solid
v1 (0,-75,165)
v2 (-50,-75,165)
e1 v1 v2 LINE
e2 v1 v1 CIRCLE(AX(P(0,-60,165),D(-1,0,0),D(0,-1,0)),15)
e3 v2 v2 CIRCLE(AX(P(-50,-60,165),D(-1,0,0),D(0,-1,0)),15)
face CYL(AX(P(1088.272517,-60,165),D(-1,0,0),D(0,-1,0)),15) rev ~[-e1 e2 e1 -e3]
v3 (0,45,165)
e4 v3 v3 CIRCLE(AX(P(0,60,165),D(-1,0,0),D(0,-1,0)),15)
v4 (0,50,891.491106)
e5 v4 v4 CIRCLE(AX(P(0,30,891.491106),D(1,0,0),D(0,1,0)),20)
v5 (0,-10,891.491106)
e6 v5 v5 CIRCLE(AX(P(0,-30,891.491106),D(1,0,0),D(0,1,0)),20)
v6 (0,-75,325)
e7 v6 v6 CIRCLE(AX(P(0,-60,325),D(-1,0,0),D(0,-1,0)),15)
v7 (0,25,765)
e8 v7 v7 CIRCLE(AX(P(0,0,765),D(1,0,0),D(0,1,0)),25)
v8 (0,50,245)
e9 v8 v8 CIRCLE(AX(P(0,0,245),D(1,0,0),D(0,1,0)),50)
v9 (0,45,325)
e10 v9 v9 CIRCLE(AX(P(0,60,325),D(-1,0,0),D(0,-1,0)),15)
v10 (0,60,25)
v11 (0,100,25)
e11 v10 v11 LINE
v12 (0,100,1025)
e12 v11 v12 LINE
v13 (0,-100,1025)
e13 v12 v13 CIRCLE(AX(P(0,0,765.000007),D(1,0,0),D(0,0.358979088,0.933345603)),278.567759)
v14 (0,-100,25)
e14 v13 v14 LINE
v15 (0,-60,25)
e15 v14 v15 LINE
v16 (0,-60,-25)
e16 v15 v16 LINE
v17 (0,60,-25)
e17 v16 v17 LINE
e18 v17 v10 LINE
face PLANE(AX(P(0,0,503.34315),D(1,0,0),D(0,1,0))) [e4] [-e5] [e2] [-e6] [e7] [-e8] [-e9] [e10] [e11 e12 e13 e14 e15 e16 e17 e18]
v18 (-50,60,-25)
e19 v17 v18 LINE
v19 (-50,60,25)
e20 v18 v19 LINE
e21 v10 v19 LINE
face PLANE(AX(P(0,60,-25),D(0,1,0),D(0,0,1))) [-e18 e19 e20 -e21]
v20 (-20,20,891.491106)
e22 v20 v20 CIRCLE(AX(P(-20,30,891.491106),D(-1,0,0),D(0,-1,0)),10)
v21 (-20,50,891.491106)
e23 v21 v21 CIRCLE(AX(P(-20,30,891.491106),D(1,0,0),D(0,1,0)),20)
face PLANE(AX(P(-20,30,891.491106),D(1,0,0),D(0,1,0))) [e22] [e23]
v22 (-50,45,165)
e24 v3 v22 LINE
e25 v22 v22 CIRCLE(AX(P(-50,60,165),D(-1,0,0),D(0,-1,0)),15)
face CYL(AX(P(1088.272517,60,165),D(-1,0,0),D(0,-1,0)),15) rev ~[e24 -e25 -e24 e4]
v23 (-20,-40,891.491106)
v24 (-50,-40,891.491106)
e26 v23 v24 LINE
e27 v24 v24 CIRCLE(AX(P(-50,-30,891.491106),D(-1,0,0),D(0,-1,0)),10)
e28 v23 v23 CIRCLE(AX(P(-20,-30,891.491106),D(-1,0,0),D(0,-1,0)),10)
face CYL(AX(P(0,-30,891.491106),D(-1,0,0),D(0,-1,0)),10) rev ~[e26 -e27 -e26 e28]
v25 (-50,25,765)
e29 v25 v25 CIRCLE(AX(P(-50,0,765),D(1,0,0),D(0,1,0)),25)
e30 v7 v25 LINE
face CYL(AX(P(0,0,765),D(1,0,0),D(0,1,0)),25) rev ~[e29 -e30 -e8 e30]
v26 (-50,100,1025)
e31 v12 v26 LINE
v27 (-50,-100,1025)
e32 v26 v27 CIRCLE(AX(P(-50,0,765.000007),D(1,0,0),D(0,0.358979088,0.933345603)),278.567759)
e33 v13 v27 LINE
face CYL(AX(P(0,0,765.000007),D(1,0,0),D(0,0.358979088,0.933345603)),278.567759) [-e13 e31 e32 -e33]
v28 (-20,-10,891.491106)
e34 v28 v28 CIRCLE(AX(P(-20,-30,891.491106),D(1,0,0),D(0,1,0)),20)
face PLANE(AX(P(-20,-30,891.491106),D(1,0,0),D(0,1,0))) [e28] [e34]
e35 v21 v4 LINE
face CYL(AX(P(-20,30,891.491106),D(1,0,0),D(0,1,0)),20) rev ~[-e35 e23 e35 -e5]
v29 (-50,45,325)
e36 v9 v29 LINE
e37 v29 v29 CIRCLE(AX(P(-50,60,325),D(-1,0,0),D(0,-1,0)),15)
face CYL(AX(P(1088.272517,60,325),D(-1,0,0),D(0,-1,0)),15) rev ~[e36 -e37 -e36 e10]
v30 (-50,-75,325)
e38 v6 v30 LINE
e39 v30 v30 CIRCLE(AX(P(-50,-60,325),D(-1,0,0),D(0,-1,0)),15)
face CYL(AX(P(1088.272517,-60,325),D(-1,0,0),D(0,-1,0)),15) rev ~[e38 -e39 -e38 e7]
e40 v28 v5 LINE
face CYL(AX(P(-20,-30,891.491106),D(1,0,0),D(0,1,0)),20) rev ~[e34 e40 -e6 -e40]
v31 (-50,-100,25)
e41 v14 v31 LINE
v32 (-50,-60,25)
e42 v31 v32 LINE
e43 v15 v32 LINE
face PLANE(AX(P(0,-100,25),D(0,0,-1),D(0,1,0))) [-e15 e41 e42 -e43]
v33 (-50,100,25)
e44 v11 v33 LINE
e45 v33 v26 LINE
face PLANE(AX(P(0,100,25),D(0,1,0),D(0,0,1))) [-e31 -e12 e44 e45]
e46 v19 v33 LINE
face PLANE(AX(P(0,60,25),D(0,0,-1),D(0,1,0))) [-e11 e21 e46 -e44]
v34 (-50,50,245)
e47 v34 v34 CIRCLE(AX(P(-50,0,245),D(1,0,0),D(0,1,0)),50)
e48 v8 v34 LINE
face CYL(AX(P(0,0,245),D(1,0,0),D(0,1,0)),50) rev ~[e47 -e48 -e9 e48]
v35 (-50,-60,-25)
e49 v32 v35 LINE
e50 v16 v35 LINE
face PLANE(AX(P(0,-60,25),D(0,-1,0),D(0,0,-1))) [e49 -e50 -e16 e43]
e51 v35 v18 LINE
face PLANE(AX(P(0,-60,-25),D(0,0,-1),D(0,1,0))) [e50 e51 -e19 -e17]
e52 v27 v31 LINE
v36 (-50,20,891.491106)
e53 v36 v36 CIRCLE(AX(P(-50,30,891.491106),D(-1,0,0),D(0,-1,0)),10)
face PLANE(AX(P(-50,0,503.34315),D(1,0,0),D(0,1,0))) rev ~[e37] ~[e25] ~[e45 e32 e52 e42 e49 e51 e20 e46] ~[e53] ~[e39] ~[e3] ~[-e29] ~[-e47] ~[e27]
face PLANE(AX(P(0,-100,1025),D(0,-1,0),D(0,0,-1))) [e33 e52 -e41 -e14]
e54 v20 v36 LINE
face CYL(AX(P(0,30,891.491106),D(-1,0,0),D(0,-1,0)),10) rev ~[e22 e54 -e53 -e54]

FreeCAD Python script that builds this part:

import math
import FreeCAD as App
import Part
import Sketcher
from FreeCAD import Vector

doc = App.newDocument("Part")
body = doc.addObject("PartDesign::Body", "Body")

# Sketch on YZ plane
sketch1 = doc.addObject("Sketcher::SketchObject", "Sketch")
body.addObject(sketch1)
sketch1.AttachmentSupport = (doc.YZ_Plane, [""])
sketch1.MapMode = "FlatFace"
sketch1.addGeometry([
    Part.LineSegment(Vector(-60, -25, 0), Vector(60, -25, 0)),  # 0
    Part.LineSegment(Vector(60, -25, 0), Vector(60, 25, 0)),  # 1
    Part.LineSegment(Vector(60, 25, 0), Vector(100, 25, 0)),  # 2
    Part.LineSegment(Vector(100, 25, 0), Vector(100, 1025, 0)),  # 3
    Part.ArcOfCircle(Part.Circle(Vector(0, 765, 0), Vector(0, 0, 1), 279), math.radians(69), math.radians(111)),  # 4
    Part.LineSegment(Vector(-100, 1025, 0), Vector(-100, 25, 0)),  # 5
    Part.LineSegment(Vector(-100, 25, 0), Vector(-60, 25, 0)),  # 6
    Part.LineSegment(Vector(-60, 25, 0), Vector(-60, -25, 0)),  # 7
    Part.Circle(Vector(0, 245, 0), Vector(0, 0, 1), 50),  # 8
    Part.Circle(Vector(0, 765, 0), Vector(0, 0, 1), 25),  # 9
], False)
sketch1.addConstraint([
    Sketcher.Constraint("Coincident", 0, 2, 1, 1),
    Sketcher.Constraint("Coincident", 1, 2, 2, 1),
    Sketcher.Constraint("Coincident", 2, 2, 3, 1),
    Sketcher.Constraint("Coincident", 3, 2, 4, 1),
    Sketcher.Constraint("Coincident", 4, 2, 5, 1),
    Sketcher.Constraint("Coincident", 5, 2, 6, 1),
    Sketcher.Constraint("Coincident", 6, 2, 7, 1),
    Sketcher.Constraint("Coincident", 7, 2, 0, 1),
    Sketcher.Constraint("Horizontal", 0),
    Sketcher.Constraint("Vertical", 1),
    Sketcher.Constraint("Horizontal", 2),
    Sketcher.Constraint("Vertical", 3),
    Sketcher.Constraint("Vertical", 5),
    Sketcher.Constraint("Horizontal", 6),
    Sketcher.Constraint("Vertical", 7),
    Sketcher.Constraint("Coincident", 9, 3, 4, 3),
    Sketcher.Constraint("Symmetric", 0, 2, 6, 2, -1, 1),
    Sketcher.Constraint("Symmetric", 3, 2, 4, 2, -2),
    Sketcher.Constraint("PointOnObject", 8, 3, -2),
    Sketcher.Constraint("Horizontal", 2, 2, 5, 2),
    Sketcher.Constraint("Diameter", 8, 100.0),
    Sketcher.Constraint("Diameter", 9, 50.0),
    Sketcher.Constraint("DistanceX", 0, 1, 0, 2, 120.0),
    Sketcher.Constraint("DistanceX", 2, 1, 2, 2, 40.0),
    Sketcher.Constraint("DistanceY", 1, 1, 1, 2, 50.0),
    Sketcher.Constraint("DistanceY", 3, 1, 3, 2, 1000.0),
    Sketcher.Constraint("DistanceY", -1, 1, 8, 3, 245.0),
    Sketcher.Constraint("DistanceY", -1, 1, 9, 3, 765.0),
])
pad1 = doc.addObject("PartDesign::Pad", "Pad")
body.addObject(pad1)
pad1.Profile = sketch1
pad1.Length = 50
pad1.Reversed = True

# Sketch on YZ plane
sketch2 = doc.addObject("Sketcher::SketchObject", "Sketch001")
body.addObject(sketch2)
sketch2.AttachmentSupport = (doc.YZ_Plane, [""])
sketch2.MapMode = "FlatFace"
sketch2.addGeometry([
    Part.Circle(Vector(-60, 165, 0), Vector(0, 0, 1), 15),
    Part.Circle(Vector(-60, 325, 0), Vector(0, 0, 1), 15),
    Part.Circle(Vector(60, 325, 0), Vector(0, 0, 1), 15),
    Part.Circle(Vector(60, 165, 0), Vector(0, 0, 1), 15),
], False)
sketch2.addConstraint([
    Sketcher.Constraint("Equal", 0, 1),
    Sketcher.Constraint("Equal", 1, 2),
    Sketcher.Constraint("Equal", 2, 3),
    Sketcher.Constraint("Symmetric", 1, 3, 2, 3, -2),
    Sketcher.Constraint("Symmetric", 0, 3, 3, 3, -2),
    Sketcher.Constraint("Vertical", 0, 3, 1, 3),
    Sketcher.Constraint("Diameter", 0, 30.0),
    Sketcher.Constraint("DistanceX", 0, 3, -1, 1, 60.0),
    Sketcher.Constraint("DistanceY", -1, 1, 0, 3, 165.0),
    Sketcher.Constraint("DistanceY", -1, 1, 1, 3, 325.0),
])
doc.recompute()
hole = doc.addObject("PartDesign::Hole", "Hole")
body.addObject(hole)
hole.Profile = sketch2
hole.ThreadType = "None"
hole.Diameter = 30
hole.DepthType = "ThroughAll"

# Sketch on YZ plane
sketch3 = doc.addObject("Sketcher::SketchObject", "Sketch002")
body.addObject(sketch3)
sketch3.AttachmentSupport = (doc.YZ_Plane, [""])
sketch3.MapMode = "FlatFace"
sketch3.addGeometry([
    Part.Circle(Vector(30, 891, 0), Vector(0, 0, 1), 10),
    Part.Circle(Vector(-30, 891, 0), Vector(0, 0, 1), 10),
], False)
sketch3.addConstraint([
    Sketcher.Constraint("Equal", 0, 1),
    Sketcher.Constraint("Symmetric", 0, 3, 1, 3, -2),
    Sketcher.Constraint("Diameter", 0, 20.0),
    Sketcher.Constraint("DistanceX", -1, 1, 0, 3, 30.0),
    Sketcher.Constraint("DistanceY", -1, 1, 0, 3, 891.491106),
])
doc.recompute()
hole2 = doc.addObject("PartDesign::Hole", "Hole001")
body.addObject(hole2)
hole2.Profile = sketch3
hole2.ThreadType = "None"
hole2.Diameter = 20
hole2.DepthType = "ThroughAll"
hole2.HoleCutType = "Counterbore"
hole2.HoleCutDiameter = 40
hole2.HoleCutDepth = 20

doc.recompute()
